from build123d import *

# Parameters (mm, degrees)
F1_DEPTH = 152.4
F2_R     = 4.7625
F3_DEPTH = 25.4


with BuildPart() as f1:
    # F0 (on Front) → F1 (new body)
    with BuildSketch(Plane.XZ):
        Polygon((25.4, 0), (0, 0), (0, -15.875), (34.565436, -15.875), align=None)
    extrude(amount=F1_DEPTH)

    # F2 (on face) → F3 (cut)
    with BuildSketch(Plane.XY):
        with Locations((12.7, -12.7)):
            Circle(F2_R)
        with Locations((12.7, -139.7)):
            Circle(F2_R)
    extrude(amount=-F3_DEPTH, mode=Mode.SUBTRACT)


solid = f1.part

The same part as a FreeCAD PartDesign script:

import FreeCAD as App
import Part
import Sketcher
Q = App.Units.Quantity


def add_polygon(sketch, points):
    """Adds a closed chain of lines whose ends are joined by coincident constraints."""
    first, n = sketch.GeometryCount, len(points)
    for a, b in zip(points, points[1:] + points[:1]):
        sketch.addGeometry(Part.LineSegment(App.Vector(*a, 0), App.Vector(*b, 0)), False)
    for i in range(n):
        sketch.addConstraint(Sketcher.Constraint("Coincident", first + i, 2, first + (i + 1) % n, 1))

doc = App.newDocument("Part")
params = doc.addObject("Spreadsheet::Sheet", "Params")
for row, (alias, value) in enumerate([
    ("sketch1_width", "1 in"),
    ("sketch1_height", "0.625 in"),
    ("pad1_length", "6 in"),
    ("sketch2_diameter", "0.375 in"),
    ("pocket1_length", "1 in"),
], start=1):
    params.set(f"A{row}", alias)
    params.set(f"B{row}", "=" + value)
    params.setAlias(f"B{row}", alias)

body = doc.addObject("PartDesign::Body", "Body")

sketch1 = doc.addObject("Sketcher::SketchObject", "Sketch")
body.addObject(sketch1)
sketch1.AttachmentSupport = (doc.XZ_Plane, [""])
sketch1.MapMode = "FlatFace"
add_polygon(sketch1, [(25, 0), (0, 0), (0, -16), (35, -16)])
sketch1.addConstraint(Sketcher.Constraint("Horizontal", 0))
sketch1.addConstraint(Sketcher.Constraint("Vertical", 1))
sketch1.addConstraint(Sketcher.Constraint("Horizontal", 2))
sketch1.addConstraint(Sketcher.Constraint("Coincident", 0, 2, -1, 1))
sketch1.addConstraint(Sketcher.Constraint("DistanceX", 0, 2, 0, 1, Q("1 in")))
sketch1.addConstraint(Sketcher.Constraint("Angle", 3, Q("120.000001 deg")))
sketch1.addConstraint(Sketcher.Constraint("DistanceY", 1, 2, 1, 1, Q("0.625 in")))
sketch1.setExpression("Constraints[8]", "Params.sketch1_width")
sketch1.setExpression("Constraints[10]", "Params.sketch1_height")
pad1 = doc.addObject("PartDesign::Pad", "Pad")
body.addObject(pad1)
pad1.Profile = sketch1
pad1.setExpression("Length", "Params.pad1_length")

sketch2 = doc.addObject("Sketcher::SketchObject", "Sketch001")
body.addObject(sketch2)
sketch2.AttachmentSupport = (doc.XY_Plane, [""])
sketch2.MapMode = "FlatFace"
sketch2.addGeometry(Part.Circle(App.Vector(12.7, -12.7, 0), App.Vector(0, 0, 1), 4.8), False)
sketch2.addGeometry(Part.Circle(App.Vector(12.7, -139.7, 0), App.Vector(0, 0, 1), 4.8), False)
sketch2.addConstraint(Sketcher.Constraint("Equal", 0, 1))
sketch2.addConstraint(Sketcher.Constraint("Vertical", 0, 3, 1, 3))
sketch2.addConstraint(Sketcher.Constraint("Diameter", 0, Q("0.375 in")))
sketch2.addConstraint(Sketcher.Constraint("DistanceY", 1, 3, 0, 3, Q("5 in")))
sketch2.addConstraint(Sketcher.Constraint("DistanceX", -1, 1, 0, 3, Q("0.5 in")))
sketch2.addConstraint(Sketcher.Constraint("DistanceY", 0, 3, -1, 1, Q("0.5 in")))
sketch2.setExpression("Constraints[2]", "Params.sketch2_diameter")
pocket1 = doc.addObject("PartDesign::Pocket", "Pocket")
body.addObject(pocket1)
pocket1.Profile = sketch2
pocket1.setExpression("Length", "Params.pocket1_length")

doc.recompute()
